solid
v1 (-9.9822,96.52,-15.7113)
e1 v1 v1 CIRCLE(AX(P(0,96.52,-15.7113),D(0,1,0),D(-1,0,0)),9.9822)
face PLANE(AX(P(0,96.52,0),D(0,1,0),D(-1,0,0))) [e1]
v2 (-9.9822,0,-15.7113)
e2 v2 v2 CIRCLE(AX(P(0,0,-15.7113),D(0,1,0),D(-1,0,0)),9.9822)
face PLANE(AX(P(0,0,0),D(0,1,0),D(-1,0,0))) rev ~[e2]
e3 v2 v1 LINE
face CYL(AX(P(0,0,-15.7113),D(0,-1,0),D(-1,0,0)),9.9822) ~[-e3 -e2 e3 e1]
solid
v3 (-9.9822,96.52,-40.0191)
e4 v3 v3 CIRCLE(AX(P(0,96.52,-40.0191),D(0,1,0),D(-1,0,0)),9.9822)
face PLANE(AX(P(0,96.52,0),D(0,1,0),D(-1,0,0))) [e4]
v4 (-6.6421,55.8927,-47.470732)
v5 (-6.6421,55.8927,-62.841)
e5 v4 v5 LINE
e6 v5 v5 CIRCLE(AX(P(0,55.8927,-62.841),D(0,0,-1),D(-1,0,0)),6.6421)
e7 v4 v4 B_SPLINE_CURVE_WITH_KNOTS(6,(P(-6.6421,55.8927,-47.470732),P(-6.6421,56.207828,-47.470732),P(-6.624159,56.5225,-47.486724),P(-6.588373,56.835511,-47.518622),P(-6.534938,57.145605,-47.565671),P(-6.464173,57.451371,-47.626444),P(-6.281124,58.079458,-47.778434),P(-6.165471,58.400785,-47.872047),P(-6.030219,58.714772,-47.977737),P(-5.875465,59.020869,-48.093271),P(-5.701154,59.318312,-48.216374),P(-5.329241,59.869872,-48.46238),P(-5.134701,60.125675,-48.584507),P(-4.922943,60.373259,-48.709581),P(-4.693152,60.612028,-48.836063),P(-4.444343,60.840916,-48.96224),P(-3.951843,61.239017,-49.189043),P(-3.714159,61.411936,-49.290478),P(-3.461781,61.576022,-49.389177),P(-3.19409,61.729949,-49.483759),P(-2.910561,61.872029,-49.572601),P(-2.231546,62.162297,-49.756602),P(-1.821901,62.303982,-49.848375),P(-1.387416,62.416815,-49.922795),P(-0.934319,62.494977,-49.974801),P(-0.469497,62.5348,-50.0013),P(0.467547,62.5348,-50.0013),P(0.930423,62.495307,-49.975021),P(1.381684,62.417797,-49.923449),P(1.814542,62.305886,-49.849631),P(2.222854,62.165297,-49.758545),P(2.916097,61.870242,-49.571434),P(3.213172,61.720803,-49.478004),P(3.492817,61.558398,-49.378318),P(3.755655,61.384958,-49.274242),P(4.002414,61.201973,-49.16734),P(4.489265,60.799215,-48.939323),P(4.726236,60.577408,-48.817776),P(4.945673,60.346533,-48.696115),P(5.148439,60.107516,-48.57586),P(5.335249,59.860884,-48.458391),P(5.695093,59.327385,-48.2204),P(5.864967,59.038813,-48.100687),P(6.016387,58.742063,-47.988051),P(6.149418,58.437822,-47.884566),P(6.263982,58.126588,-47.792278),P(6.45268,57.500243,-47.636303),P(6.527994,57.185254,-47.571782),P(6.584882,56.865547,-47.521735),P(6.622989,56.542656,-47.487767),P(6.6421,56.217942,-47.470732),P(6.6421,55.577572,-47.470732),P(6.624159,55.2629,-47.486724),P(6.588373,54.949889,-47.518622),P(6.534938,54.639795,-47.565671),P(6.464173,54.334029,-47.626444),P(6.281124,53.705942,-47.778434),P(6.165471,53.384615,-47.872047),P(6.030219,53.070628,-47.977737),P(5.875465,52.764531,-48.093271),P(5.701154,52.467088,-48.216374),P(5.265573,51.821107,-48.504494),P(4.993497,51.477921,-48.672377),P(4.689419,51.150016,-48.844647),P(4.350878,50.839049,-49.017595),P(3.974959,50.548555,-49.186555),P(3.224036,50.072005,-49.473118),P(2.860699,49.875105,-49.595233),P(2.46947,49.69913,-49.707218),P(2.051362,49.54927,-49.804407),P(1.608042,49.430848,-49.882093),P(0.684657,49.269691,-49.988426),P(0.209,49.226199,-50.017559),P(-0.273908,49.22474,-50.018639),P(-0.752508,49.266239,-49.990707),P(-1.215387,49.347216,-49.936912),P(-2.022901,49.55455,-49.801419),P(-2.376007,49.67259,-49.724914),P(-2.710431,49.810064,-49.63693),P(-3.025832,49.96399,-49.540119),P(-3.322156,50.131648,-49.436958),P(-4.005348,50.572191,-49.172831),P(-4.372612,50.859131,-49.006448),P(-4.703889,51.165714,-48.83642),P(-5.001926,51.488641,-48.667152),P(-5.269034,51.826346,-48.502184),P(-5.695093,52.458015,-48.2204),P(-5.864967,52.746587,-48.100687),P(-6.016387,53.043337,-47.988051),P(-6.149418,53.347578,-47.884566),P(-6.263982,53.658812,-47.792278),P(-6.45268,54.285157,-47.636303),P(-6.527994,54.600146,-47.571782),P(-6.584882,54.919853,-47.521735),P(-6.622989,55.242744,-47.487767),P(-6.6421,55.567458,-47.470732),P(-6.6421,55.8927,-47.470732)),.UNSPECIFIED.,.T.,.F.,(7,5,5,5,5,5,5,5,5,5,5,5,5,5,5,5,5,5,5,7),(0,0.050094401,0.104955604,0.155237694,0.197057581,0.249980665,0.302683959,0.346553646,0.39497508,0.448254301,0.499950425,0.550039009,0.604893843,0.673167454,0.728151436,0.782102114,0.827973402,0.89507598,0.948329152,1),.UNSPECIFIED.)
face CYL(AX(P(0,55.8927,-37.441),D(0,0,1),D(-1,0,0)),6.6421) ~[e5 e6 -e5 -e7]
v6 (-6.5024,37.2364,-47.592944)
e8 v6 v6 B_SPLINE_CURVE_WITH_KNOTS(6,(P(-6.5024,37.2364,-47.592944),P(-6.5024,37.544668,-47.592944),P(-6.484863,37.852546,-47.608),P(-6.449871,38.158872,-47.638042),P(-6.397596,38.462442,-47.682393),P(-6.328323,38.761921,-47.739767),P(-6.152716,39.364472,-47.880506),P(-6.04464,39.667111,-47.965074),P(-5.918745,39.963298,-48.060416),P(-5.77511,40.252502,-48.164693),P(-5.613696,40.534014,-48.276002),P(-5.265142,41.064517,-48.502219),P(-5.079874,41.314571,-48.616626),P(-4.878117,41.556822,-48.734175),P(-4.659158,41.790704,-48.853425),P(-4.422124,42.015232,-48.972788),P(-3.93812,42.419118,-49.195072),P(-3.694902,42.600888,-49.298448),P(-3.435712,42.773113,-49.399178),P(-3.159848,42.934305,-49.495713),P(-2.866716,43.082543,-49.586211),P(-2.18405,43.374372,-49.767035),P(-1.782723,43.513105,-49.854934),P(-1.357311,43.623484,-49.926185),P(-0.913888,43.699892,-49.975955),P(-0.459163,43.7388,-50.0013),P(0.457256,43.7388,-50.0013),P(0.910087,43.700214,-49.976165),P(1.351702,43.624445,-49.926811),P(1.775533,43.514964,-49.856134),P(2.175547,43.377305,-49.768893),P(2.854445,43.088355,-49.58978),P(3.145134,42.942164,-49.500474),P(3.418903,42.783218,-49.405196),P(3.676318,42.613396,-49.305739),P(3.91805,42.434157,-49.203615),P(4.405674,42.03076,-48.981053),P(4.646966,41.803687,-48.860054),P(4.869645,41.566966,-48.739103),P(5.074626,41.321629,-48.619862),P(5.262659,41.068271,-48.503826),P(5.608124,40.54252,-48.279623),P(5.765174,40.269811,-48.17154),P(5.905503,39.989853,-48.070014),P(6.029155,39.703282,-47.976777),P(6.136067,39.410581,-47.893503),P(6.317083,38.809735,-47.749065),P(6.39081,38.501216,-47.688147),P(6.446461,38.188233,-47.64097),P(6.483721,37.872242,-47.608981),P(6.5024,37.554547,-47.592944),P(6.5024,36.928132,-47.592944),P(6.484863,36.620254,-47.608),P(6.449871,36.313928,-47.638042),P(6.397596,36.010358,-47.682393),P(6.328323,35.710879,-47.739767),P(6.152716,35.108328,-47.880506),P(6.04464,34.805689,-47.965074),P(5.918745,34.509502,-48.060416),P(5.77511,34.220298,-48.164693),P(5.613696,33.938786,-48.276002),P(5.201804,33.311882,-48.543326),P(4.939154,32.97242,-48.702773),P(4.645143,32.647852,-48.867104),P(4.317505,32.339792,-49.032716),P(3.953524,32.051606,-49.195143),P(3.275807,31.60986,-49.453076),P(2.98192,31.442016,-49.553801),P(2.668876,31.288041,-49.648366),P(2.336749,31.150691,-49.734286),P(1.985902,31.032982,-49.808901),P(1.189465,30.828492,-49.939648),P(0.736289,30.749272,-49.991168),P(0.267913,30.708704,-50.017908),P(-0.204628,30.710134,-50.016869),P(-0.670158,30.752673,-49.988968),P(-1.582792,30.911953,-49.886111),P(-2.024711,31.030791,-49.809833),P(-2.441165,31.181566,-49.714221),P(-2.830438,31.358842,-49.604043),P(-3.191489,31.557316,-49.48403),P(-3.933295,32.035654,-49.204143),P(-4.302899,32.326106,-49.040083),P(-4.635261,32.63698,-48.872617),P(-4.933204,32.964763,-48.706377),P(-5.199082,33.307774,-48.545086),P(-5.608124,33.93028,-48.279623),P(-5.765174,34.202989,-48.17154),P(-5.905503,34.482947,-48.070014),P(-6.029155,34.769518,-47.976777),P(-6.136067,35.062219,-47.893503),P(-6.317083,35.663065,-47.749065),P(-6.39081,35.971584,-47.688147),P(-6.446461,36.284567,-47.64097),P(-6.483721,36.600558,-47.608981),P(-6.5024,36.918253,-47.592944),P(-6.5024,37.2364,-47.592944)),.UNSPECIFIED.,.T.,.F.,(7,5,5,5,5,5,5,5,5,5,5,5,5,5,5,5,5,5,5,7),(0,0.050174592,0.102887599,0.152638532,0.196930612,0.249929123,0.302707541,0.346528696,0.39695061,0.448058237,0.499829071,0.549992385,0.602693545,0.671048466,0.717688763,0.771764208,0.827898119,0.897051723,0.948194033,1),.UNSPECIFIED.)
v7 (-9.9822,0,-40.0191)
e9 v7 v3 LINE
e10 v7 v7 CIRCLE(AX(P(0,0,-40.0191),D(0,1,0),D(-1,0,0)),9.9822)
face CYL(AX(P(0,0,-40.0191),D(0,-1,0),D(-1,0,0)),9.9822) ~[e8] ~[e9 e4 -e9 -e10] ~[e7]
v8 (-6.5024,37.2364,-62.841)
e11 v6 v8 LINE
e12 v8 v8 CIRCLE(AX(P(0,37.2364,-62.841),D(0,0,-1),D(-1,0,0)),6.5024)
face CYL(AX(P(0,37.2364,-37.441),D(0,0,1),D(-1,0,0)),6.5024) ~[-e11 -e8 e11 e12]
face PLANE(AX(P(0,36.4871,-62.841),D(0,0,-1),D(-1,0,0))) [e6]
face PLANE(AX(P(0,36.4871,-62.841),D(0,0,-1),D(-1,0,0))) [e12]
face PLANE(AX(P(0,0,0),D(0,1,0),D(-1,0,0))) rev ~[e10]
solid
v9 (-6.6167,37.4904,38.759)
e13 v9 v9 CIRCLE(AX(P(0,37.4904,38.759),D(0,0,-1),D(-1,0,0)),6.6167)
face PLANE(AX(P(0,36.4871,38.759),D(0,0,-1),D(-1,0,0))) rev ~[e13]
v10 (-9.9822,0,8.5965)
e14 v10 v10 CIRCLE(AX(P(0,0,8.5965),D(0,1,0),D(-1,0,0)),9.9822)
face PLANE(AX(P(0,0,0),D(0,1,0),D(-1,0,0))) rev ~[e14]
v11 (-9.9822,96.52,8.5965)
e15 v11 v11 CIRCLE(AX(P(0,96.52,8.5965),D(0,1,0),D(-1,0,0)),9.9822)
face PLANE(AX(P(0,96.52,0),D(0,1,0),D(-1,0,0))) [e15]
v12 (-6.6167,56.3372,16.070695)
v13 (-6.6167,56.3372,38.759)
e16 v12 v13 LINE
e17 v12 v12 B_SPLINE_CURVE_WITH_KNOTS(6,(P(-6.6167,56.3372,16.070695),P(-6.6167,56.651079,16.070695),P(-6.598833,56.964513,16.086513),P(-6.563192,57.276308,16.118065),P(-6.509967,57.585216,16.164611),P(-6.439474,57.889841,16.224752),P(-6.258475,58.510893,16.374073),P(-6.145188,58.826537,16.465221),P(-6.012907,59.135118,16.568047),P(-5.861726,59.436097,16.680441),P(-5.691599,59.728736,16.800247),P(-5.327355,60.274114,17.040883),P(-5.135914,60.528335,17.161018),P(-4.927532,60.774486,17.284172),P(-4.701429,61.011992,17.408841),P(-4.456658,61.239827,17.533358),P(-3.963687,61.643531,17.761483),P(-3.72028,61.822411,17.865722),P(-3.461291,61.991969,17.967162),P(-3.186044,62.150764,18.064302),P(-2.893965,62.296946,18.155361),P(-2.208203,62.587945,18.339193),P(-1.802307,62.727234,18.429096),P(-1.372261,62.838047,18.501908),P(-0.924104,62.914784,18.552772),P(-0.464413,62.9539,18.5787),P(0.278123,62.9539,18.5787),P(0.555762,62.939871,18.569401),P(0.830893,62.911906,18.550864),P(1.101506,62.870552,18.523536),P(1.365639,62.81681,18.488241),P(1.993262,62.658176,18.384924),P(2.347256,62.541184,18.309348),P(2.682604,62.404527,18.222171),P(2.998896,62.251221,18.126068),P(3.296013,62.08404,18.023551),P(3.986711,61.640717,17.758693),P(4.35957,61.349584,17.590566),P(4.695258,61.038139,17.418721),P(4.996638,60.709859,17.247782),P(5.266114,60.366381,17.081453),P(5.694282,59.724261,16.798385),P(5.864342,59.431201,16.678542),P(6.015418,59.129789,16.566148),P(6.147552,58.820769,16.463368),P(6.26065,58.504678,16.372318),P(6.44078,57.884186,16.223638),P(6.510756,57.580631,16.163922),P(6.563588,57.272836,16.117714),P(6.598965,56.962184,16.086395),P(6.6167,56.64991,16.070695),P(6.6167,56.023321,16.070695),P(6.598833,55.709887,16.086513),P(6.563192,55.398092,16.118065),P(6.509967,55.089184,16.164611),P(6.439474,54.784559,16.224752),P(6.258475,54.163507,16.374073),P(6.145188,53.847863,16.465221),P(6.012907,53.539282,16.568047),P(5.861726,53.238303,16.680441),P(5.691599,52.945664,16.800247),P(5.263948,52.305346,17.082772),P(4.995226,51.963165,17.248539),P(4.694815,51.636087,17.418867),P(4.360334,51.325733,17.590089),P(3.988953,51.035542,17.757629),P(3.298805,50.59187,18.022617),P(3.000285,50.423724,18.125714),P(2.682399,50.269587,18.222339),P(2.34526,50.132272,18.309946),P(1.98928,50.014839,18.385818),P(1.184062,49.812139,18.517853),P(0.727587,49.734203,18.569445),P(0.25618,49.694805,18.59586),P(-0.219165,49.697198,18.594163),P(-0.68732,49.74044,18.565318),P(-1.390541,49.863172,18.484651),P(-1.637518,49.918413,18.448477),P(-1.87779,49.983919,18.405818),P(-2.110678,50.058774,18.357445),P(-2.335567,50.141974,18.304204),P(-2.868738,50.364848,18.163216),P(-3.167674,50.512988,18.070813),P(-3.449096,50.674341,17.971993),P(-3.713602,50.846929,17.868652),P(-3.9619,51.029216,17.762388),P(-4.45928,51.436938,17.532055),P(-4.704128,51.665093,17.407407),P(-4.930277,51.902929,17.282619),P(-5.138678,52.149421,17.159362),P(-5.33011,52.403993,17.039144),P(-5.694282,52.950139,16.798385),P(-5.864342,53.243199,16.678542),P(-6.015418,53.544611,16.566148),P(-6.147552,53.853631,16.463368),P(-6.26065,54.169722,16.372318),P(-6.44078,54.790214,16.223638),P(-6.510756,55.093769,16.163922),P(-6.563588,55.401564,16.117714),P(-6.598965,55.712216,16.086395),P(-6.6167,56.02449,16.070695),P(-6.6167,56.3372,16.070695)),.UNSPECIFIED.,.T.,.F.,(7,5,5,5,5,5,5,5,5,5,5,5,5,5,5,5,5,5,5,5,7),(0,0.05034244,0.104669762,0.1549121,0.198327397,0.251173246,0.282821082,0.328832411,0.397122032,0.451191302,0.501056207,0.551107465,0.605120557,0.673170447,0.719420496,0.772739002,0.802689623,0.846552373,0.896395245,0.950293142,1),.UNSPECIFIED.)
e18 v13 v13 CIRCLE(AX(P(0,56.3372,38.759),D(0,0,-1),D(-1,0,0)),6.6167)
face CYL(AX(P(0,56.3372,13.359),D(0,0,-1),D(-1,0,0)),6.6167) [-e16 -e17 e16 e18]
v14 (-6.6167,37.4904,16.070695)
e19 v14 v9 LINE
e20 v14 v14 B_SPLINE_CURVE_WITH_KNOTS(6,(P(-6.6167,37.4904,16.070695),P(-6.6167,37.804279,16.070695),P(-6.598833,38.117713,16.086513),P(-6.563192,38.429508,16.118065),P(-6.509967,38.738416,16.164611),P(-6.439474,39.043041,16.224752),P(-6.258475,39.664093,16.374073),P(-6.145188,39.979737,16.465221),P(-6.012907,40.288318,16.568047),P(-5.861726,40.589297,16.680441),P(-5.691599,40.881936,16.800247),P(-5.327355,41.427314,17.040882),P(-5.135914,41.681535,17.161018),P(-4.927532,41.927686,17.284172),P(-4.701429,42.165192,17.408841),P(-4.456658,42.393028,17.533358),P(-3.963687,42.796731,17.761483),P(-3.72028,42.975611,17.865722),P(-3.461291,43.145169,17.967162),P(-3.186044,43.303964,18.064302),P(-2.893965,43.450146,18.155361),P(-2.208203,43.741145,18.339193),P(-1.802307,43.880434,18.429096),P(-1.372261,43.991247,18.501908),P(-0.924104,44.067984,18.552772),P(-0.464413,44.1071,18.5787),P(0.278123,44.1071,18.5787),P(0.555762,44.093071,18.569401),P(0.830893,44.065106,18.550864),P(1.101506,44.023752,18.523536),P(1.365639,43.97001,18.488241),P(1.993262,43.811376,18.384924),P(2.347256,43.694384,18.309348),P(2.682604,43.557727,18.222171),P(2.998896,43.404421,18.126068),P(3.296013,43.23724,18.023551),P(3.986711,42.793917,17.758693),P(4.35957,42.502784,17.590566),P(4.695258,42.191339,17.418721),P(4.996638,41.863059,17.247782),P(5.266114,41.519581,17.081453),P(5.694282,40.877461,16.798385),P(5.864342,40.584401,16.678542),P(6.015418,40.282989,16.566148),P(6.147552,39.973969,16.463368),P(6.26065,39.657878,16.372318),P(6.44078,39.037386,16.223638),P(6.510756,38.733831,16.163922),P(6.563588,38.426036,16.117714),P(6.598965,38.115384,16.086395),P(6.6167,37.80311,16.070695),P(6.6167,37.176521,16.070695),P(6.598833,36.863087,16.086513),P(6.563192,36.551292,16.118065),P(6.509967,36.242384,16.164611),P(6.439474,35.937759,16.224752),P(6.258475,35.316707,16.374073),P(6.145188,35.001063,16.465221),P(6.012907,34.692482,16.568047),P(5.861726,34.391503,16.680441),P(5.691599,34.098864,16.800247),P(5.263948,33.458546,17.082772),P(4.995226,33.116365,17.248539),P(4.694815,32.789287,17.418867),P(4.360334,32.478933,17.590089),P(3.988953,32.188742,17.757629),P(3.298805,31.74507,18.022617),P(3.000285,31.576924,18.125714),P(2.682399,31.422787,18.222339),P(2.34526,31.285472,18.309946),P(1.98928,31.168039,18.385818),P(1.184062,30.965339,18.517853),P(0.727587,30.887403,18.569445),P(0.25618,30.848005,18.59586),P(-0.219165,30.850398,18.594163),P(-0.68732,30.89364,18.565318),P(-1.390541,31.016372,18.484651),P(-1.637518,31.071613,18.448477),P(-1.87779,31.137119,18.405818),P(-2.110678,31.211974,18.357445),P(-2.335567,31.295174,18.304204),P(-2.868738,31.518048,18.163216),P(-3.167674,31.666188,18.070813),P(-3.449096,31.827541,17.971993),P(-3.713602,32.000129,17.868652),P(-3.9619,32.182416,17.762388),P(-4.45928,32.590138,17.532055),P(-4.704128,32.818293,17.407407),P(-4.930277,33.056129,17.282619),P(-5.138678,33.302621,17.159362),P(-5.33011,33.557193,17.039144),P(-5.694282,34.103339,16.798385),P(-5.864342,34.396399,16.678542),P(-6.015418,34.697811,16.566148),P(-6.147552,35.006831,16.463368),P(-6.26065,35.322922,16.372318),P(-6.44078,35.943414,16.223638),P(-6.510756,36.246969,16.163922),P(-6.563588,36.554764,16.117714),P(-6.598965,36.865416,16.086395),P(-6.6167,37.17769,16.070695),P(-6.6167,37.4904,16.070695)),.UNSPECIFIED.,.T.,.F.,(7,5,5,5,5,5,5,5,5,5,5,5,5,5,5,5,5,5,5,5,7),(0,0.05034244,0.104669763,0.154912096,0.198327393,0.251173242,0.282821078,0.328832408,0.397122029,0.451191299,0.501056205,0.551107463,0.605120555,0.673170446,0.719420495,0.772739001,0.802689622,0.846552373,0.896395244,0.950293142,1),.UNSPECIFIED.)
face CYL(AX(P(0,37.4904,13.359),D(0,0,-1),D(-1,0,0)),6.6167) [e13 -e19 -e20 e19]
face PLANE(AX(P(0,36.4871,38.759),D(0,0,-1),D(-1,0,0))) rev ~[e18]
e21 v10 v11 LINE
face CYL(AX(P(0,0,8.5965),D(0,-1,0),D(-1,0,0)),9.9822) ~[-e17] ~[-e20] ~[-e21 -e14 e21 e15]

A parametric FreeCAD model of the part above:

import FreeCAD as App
import Part
import Sketcher

V = App.Vector
Q = App.Units.Quantity

doc = App.newDocument("Part")
params = doc.addObject("Spreadsheet::Sheet", "Params")
for row, (alias, value) in enumerate([
    ("sketch1_diameter", "0.786 in"),
    ("pad1_length", "3.8 in"),
    ("sketch2_diameter", "0.521 in"),
    ("pad2_length", "1 in"),
    ("sketch3_diameter", "0.512 in"),
    ("sketch3_diameter2", "0.523 in"),
    ("pad3_length", "1 in"),
], start=1):
    params.set(f"A{row}", alias)
    params.set(f"B{row}", "=" + value)
    params.setAlias(f"B{row}", alias)

body = doc.addObject("PartDesign::Body", "Body")
body.AllowCompound = True

sketch1 = body.newObject("Sketcher::SketchObject", "Sketch")
sketch1.AttachmentSupport = (doc.getObject("XZ_Plane"), [""])
sketch1.MapMode = "FlatFace"
sketch1.addGeometry(Part.Circle(V(0, 8.5965, 0), V(0, 0, 1), 9.9822), False)
sketch1.addGeometry(Part.Circle(V(0, -40.0191, 0), V(0, 0, 1), 9.9822), False)
sketch1.addGeometry(Part.Circle(V(0, -15.7113, 0), V(0, 0, 1), 9.9822), False)
sketch1.addConstraint(Sketcher.Constraint("Equal", 0, 1))
sketch1.addConstraint(Sketcher.Constraint("Equal", 1, 2))
sketch1.addConstraint(Sketcher.Constraint("PointOnObject", 0, 3, -2))
sketch1.addConstraint(Sketcher.Constraint("PointOnObject", 1, 3, -2))
sketch1.addConstraint(Sketcher.Constraint("PointOnObject", 2, 3, -2))
sketch1.addConstraint(Sketcher.Constraint("Diameter", 0, Q("0.786 in")))
sketch1.addConstraint(Sketcher.Constraint("DistanceY", 1, 3, 0, 3, Q("1.914 in")))
sketch1.addConstraint(Sketcher.Constraint("DistanceY", 2, 3, 0, 3, Q("0.957 in")))
sketch1.addConstraint(Sketcher.Constraint("DistanceY", -1, 1, 0, 3, Q("8.5965 mm")))
sketch1.setExpression("Constraints[5]", "Params.sketch1_diameter")
pad1 = body.newObject("PartDesign::Pad", "Pad")
pad1.Profile = sketch1
pad1.setExpression("Length", "Params.pad1_length")
pad1.Reversed = True

sketch2 = body.newObject("Sketcher::SketchObject", "Sketch001")
sketch2.AttachmentSupport = (doc.getObject("XY_Plane"), [""])
sketch2.MapMode = "FlatFace"
sketch2.AttachmentOffset = App.Placement(V(0, 0, 13.359), App.Rotation())
sketch2.addGeometry(Part.Circle(V(0, 56.3372, 0), V(0, 0, 1), 6.6167), False)
sketch2.addGeometry(Part.Circle(V(0, 37.4904, 0), V(0, 0, 1), 6.6167), False)
sketch2.addConstraint(Sketcher.Constraint("Equal", 0, 1))
sketch2.addConstraint(Sketcher.Constraint("PointOnObject", 0, 3, -2))
sketch2.addConstraint(Sketcher.Constraint("PointOnObject", 1, 3, -2))
sketch2.addConstraint(Sketcher.Constraint("Diameter", 0, Q("0.521 in")))
sketch2.addConstraint(Sketcher.Constraint("DistanceY", -1, 1, 1, 3, Q("1.476 in")))
sketch2.addConstraint(Sketcher.Constraint("DistanceY", 1, 3, 0, 3, Q("0.742 in")))
sketch2.setExpression("Constraints[3]", "Params.sketch2_diameter")
pad2 = body.newObject("PartDesign::Pad", "Pad001")
pad2.Profile = sketch2
pad2.setExpression("Length", "Params.pad2_length")

sketch3 = body.newObject("Sketcher::SketchObject", "Sketch002")
sketch3.AttachmentSupport = (doc.getObject("XY_Plane"), [""])
sketch3.MapMode = "FlatFace"
sketch3.AttachmentOffset = App.Placement(V(0, 0, -37.441), App.Rotation())
sketch3.addGeometry(Part.Circle(V(0, 37.2364, 0), V(0, 0, 1), 6.5024), False)
sketch3.addGeometry(Part.Circle(V(0, 55.8927, 0), V(0, 0, 1), 6.6421), False)
sketch3.addConstraint(Sketcher.Constraint("PointOnObject", 0, 3, -2))
sketch3.addConstraint(Sketcher.Constraint("PointOnObject", 1, 3, -2))
sketch3.addConstraint(Sketcher.Constraint("Diameter", 0, Q("0.512 in")))
sketch3.addConstraint(Sketcher.Constraint("Diameter", 1, Q("0.523 in")))
sketch3.addConstraint(Sketcher.Constraint("DistanceY", -1, 1, 0, 3, Q("1.466 in")))
sketch3.addConstraint(Sketcher.Constraint("DistanceY", 0, 3, 1, 3, Q("0.7345 in")))
sketch3.setExpression("Constraints[2]", "Params.sketch3_diameter")
sketch3.setExpression("Constraints[3]", "Params.sketch3_diameter2")
pad3 = body.newObject("PartDesign::Pad", "Pad002")
pad3.Profile = sketch3
pad3.setExpression("Length", "Params.pad3_length")
pad3.Reversed = True

doc.recompute()
